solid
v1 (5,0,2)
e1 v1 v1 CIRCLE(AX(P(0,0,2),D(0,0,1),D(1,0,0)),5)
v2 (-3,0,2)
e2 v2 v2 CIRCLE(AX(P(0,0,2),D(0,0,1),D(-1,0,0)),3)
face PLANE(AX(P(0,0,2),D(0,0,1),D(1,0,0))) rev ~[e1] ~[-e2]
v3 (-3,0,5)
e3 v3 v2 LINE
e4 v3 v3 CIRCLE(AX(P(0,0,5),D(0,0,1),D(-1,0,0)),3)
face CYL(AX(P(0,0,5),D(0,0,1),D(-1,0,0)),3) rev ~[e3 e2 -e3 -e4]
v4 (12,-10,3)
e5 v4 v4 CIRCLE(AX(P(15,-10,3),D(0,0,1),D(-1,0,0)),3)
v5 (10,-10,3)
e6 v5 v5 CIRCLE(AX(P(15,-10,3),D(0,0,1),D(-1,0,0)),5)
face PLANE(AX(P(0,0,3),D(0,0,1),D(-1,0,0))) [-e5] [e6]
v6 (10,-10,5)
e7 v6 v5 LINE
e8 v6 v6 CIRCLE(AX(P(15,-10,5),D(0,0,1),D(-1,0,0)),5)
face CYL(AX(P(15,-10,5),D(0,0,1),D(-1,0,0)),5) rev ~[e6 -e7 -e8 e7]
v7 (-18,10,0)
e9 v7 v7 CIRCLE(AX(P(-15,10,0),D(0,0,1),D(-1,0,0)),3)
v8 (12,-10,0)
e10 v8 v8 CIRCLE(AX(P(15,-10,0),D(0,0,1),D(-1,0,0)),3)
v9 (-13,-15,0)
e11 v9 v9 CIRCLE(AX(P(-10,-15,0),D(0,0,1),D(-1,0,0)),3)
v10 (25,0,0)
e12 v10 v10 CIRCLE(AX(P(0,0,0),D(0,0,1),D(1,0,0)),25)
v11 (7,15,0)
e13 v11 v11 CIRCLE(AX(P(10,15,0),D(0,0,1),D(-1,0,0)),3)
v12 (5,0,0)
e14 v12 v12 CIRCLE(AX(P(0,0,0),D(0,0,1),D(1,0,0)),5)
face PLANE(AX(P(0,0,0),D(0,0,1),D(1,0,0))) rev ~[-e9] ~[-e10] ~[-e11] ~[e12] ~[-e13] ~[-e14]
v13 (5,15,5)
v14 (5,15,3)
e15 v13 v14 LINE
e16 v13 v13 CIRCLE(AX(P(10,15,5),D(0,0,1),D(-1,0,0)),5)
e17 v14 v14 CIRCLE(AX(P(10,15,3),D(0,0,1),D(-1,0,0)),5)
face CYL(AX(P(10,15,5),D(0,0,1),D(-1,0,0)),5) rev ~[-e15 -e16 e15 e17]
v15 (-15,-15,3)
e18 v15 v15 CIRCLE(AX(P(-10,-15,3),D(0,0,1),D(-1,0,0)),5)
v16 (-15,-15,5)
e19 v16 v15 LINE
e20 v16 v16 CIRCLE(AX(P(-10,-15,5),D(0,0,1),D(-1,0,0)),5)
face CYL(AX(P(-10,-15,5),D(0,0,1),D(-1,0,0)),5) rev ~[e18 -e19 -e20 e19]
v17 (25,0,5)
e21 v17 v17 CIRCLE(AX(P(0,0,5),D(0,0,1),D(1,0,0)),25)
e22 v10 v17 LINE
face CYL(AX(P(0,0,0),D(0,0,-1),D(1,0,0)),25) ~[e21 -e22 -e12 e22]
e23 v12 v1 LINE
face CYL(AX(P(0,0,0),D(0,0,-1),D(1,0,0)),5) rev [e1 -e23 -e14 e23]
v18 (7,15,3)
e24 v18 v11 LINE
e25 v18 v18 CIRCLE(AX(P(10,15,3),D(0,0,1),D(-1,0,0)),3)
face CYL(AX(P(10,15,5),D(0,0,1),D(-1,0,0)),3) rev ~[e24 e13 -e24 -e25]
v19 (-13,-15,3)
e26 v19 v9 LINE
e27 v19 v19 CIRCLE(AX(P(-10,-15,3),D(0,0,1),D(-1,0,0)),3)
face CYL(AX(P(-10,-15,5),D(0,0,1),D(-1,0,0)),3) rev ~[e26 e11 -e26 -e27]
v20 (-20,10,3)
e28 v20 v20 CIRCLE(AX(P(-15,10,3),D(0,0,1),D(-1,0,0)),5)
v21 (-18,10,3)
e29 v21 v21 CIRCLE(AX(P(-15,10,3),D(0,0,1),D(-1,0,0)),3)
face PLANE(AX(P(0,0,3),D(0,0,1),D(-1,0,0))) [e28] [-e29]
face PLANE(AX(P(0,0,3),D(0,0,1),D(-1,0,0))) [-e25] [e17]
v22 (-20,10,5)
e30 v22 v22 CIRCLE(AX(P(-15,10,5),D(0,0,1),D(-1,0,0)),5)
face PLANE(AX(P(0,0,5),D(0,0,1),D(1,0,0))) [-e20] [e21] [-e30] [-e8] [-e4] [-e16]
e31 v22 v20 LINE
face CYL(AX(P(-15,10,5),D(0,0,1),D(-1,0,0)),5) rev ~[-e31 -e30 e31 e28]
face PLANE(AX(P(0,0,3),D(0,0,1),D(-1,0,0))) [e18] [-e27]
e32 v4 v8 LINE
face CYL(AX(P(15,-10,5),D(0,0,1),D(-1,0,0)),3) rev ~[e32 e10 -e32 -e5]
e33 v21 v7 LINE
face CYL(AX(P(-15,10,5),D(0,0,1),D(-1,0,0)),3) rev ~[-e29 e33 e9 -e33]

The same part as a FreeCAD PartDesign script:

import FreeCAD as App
import Part
import Sketcher

V = App.Vector
Q = App.Units.Quantity

doc = App.newDocument("Part")
body = doc.addObject("PartDesign::Body", "Body")

# Sketch on XY plane
sketch1 = doc.addObject("Sketcher::SketchObject", "Sketch")
body.addObject(sketch1)
sketch1.AttachmentSupport = (doc.XY_Plane, [""])
sketch1.MapMode = "FlatFace"
sketch1.addGeometry(Part.Circle(V(0, 0, 0), V(0, 0, 1), 25), False)
sketch1.addConstraint([
    Sketcher.Constraint("Coincident", 0, 3, -1, 1),
    Sketcher.Constraint("Diameter", 0, Q("50 mm")),
])
pad1 = doc.addObject("PartDesign::Pad", "Pad")
body.addObject(pad1)
pad1.Profile = sketch1
pad1.Length = 5

# Sketch on XY plane
sketch2 = doc.addObject("Sketcher::SketchObject", "Sketch001")
body.addObject(sketch2)
sketch2.AttachmentSupport = (doc.XY_Plane, [""])
sketch2.MapMode = "FlatFace"
sketch2.AttachmentOffset = App.Placement(V(0, 0, 5), App.Rotation())
sketch2.addGeometry([
    Part.Circle(V(-15, 10, 0), V(0, 0, 1), 3),
    Part.Circle(V(10, 15, 0), V(0, 0, 1), 3),
    Part.Circle(V(15, -10, 0), V(0, 0, 1), 3),
    Part.Circle(V(-10, -15, 0), V(0, 0, 1), 3),
], False)
sketch2.addConstraint([
    Sketcher.Constraint("Equal", 0, 1),
    Sketcher.Constraint("Equal", 1, 2),
    Sketcher.Constraint("Equal", 2, 3),
    Sketcher.Constraint("Symmetric", 0, 3, 2, 3, -1, 1),
    Sketcher.Constraint("Symmetric", 1, 3, 3, 3, -1, 1),
    Sketcher.Constraint("Diameter", 0, Q("6 mm")),
    Sketcher.Constraint("DistanceX", 0, 3, -1, 1, Q("15 mm")),
    Sketcher.Constraint("DistanceY", -1, 1, 0, 3, Q("10 mm")),
    Sketcher.Constraint("DistanceX", -1, 1, 1, 3, Q("10 mm")),
    Sketcher.Constraint("DistanceY", -1, 1, 1, 3, Q("15 mm")),
])
pocket1 = doc.addObject("PartDesign::Pocket", "Pocket")
body.addObject(pocket1)
pocket1.Profile = sketch2
pocket1.Length = 5

# Sketch on XY plane
sketch3 = doc.addObject("Sketcher::SketchObject", "Sketch002")
body.addObject(sketch3)
sketch3.AttachmentSupport = (doc.XY_Plane, [""])
sketch3.MapMode = "FlatFace"
sketch3.AttachmentOffset = App.Placement(V(0, 0, 5), App.Rotation())
sketch3.addGeometry([
    Part.Circle(V(-15, 10, 0), V(0, 0, 1), 5),  # 0
    Part.Circle(V(-15, 10, 0), V(0, 0, 1), 3),  # 1
    Part.Circle(V(10, 15, 0), V(0, 0, 1), 5),  # 2
    Part.Circle(V(10, 15, 0), V(0, 0, 1), 3),  # 3
    Part.Circle(V(15, -10, 0), V(0, 0, 1), 5),  # 4
    Part.Circle(V(15, -10, 0), V(0, 0, 1), 3),  # 5
    Part.Circle(V(-10, -15, 0), V(0, 0, 1), 5),  # 6
    Part.Circle(V(-10, -15, 0), V(0, 0, 1), 3),  # 7
], False)
sketch3.addConstraint([
    Sketcher.Constraint("Coincident", 1, 3, 0, 3),
    Sketcher.Constraint("Coincident", 3, 3, 2, 3),
    Sketcher.Constraint("Coincident", 5, 3, 4, 3),
    Sketcher.Constraint("Coincident", 7, 3, 6, 3),
    Sketcher.Constraint("Equal", 0, 2),
    Sketcher.Constraint("Equal", 1, 3),
    Sketcher.Constraint("Equal", 2, 4),
    Sketcher.Constraint("Equal", 3, 5),
    Sketcher.Constraint("Equal", 4, 6),
    Sketcher.Constraint("Equal", 5, 7),
    Sketcher.Constraint("Symmetric", 0, 3, 4, 3, -1, 1),
    Sketcher.Constraint("Symmetric", 2, 3, 6, 3, -1, 1),
    Sketcher.Constraint("Diameter", 0, Q("10 mm")),
    Sketcher.Constraint("Diameter", 1, Q("6 mm")),
    Sketcher.Constraint("DistanceY", -1, 1, 0, 3, Q("10 mm")),
    Sketcher.Constraint("DistanceX", -1, 1, 2, 3, Q("10 mm")),
    Sketcher.Constraint("DistanceX", 0, 3, -1, 1, Q("15 mm")),
    Sketcher.Constraint("DistanceY", -1, 1, 2, 3, Q("15 mm")),
])
pocket2 = doc.addObject("PartDesign::Pocket", "Pocket001")
body.addObject(pocket2)
pocket2.Profile = sketch3
pocket2.Length = 2

# Sketch on XY plane
sketch4 = doc.addObject("Sketcher::SketchObject", "Sketch003")
body.addObject(sketch4)
sketch4.AttachmentSupport = (doc.XY_Plane, [""])
sketch4.MapMode = "FlatFace"
sketch4.AttachmentOffset = App.Placement(V(0, 0, 5), App.Rotation())
sketch4.addGeometry(Part.Circle(V(0, 0, 0), V(0, 0, 1), 3), False)
sketch4.addConstraint([
    Sketcher.Constraint("Coincident", 0, 3, -1, 1),
    Sketcher.Constraint("Diameter", 0, Q("6 mm")),
])
pocket3 = doc.addObject("PartDesign::Pocket", "Pocket002")
body.addObject(pocket3)
pocket3.Profile = sketch4
pocket3.Length = 21

# Sketch on XY plane
sketch5 = doc.addObject("Sketcher::SketchObject", "Sketch004")
body.addObject(sketch5)
sketch5.AttachmentSupport = (doc.XY_Plane, [""])
sketch5.MapMode = "FlatFace"
sketch5.addGeometry(Part.Circle(V(0, 0, 0), V(0, 0, 1), 5), False)
sketch5.addConstraint([
    Sketcher.Constraint("Coincident", 0, 3, -1, 1),
    Sketcher.Constraint("Diameter", 0, Q("10 mm")),
])
pocket4 = doc.addObject("PartDesign::Pocket", "Pocket003")
body.addObject(pocket4)
pocket4.Profile = sketch5
pocket4.Length = 2
pocket4.Reversed = True

doc.recompute()
